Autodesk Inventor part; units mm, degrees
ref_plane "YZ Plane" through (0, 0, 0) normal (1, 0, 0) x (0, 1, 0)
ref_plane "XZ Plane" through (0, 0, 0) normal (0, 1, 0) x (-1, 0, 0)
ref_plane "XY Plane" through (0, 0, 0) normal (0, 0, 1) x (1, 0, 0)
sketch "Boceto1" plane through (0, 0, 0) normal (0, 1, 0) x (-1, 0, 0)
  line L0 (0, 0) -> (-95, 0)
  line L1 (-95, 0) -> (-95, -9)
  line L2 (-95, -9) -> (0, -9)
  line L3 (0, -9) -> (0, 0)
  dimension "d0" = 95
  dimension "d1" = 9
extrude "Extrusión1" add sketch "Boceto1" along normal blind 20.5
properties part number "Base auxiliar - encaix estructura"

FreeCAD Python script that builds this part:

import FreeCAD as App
import Part
import Sketcher
from FreeCAD import Vector


def add_polygon(sketch, points):
    """Adds a closed chain of lines whose ends are joined by coincident constraints."""
    first, n = sketch.GeometryCount, len(points)
    for a, b in zip(points, points[1:] + points[:1]):
        sketch.addGeometry(Part.LineSegment(App.Vector(*a, 0), App.Vector(*b, 0)), False)
    for i in range(n):
        sketch.addConstraint(Sketcher.Constraint("Coincident", first + i, 2, first + (i + 1) % n, 1))

doc = App.newDocument("Part")
body = doc.addObject("PartDesign::Body", "Body")

# Sketch on XZ plane
sketch1 = body.newObject("Sketcher::SketchObject", "Sketch")
sketch1.AttachmentSupport = (doc.getObject("XZ_Plane"), [""])
sketch1.MapMode = "FlatFace"
add_polygon(sketch1, [(0, -9), (0, 0), (95, 0), (95, -9)])  # lines 0-3
sketch1.addConstraint([
    Sketcher.Constraint("Vertical", 0),
    Sketcher.Constraint("Horizontal", 1),
    Sketcher.Constraint("Vertical", 2),
    Sketcher.Constraint("Horizontal", 3),
    Sketcher.Constraint("Coincident", 0, 2, -1, 1),
    Sketcher.Constraint("DistanceX", 1, 1, 1, 2, 95.0),
    Sketcher.Constraint("DistanceY", 0, 1, 0, 2, 9.0),
])
pad1 = body.newObject("PartDesign::Pad", "Pad")
pad1.Profile = sketch1
pad1.Length = 20.5
pad1.Reversed = True

doc.recompute()
